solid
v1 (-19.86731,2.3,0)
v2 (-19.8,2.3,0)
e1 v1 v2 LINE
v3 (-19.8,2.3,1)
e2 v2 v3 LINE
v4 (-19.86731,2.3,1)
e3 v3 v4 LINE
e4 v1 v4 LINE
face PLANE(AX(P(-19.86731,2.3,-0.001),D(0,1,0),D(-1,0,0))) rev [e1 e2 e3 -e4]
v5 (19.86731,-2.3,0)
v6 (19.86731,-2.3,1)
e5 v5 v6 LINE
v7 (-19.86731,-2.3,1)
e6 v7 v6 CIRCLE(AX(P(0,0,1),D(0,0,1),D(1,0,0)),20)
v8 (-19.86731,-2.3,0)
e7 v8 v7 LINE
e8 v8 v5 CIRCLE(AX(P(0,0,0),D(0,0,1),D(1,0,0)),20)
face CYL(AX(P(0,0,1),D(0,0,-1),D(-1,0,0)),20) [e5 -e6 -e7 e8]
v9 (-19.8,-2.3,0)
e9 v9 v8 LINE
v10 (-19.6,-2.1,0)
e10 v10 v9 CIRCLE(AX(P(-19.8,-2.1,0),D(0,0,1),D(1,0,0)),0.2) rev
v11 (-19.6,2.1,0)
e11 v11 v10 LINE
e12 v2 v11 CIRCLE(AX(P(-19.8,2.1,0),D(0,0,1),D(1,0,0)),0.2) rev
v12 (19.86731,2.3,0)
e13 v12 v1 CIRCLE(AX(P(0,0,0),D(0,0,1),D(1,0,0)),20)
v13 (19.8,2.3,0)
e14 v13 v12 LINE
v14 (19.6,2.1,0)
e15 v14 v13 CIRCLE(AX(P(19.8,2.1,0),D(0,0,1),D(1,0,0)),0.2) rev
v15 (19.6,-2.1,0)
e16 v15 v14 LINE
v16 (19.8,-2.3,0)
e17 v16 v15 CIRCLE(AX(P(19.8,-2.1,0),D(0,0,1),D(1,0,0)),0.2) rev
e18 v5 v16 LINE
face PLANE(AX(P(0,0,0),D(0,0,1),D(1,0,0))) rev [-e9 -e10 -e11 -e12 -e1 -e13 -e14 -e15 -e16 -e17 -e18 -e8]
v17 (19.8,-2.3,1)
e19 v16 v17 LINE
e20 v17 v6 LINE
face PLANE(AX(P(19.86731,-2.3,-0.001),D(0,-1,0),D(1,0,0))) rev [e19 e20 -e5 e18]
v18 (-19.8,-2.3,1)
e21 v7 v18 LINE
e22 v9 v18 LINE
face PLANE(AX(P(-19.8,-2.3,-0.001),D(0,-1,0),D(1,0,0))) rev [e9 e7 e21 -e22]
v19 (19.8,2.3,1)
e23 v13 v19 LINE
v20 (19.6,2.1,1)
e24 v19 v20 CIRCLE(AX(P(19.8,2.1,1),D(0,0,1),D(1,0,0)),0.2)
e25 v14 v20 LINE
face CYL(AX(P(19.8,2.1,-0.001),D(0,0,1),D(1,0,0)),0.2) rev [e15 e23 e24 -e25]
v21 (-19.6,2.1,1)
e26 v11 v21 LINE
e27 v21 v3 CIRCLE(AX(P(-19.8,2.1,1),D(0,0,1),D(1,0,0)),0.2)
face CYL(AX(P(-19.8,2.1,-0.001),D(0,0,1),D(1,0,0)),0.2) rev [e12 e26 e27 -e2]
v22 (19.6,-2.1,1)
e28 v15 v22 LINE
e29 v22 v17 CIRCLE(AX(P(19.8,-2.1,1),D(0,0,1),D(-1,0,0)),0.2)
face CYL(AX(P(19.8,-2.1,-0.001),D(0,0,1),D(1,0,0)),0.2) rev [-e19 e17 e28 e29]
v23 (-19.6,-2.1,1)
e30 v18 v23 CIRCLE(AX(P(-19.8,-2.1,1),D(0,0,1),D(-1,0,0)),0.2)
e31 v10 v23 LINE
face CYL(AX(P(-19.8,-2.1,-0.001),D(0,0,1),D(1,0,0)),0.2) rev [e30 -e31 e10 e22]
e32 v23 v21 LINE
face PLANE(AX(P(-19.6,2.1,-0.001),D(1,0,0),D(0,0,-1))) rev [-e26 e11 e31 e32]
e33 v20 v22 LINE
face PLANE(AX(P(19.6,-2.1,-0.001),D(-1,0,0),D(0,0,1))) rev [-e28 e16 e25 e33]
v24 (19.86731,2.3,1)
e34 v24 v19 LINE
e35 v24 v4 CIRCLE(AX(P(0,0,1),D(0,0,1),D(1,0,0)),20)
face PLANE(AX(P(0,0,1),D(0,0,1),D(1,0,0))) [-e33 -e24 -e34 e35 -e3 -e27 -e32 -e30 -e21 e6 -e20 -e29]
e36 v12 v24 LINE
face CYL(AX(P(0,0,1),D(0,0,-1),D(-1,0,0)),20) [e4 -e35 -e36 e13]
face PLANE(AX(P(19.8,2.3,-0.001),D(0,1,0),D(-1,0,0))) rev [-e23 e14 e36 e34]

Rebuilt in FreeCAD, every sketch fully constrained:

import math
import FreeCAD as App
import Part
import Sketcher
from FreeCAD import Vector

doc = App.newDocument("Part")
body = doc.addObject("PartDesign::Body", "Body")

# Sketch on XY plane
sketch1 = doc.addObject("Sketcher::SketchObject", "Sketch")
body.addObject(sketch1)
sketch1.AttachmentSupport = (doc.XY_Plane, [""])
sketch1.MapMode = "FlatFace"
sketch1.addGeometry(Part.Circle(Vector(0, 0, 0), Vector(0, 0, 1), 20), False)
sketch1.addConstraint([
    Sketcher.Constraint("Coincident", 0, 3, -1, 1),
    Sketcher.Constraint("Diameter", 0, 40.0),
])
pad1 = doc.addObject("PartDesign::Pad", "Pad")
body.addObject(pad1)
pad1.Profile = sketch1
pad1.Length = 1

# Sketch on XY plane
sketch2 = doc.addObject("Sketcher::SketchObject", "Sketch001")
body.addObject(sketch2)
sketch2.AttachmentSupport = (doc.XY_Plane, [""])
sketch2.MapMode = "FlatFace"
sketch2.AttachmentOffset = App.Placement(Vector(0, 0, 1), App.Rotation())
sketch2.addGeometry([
    Part.LineSegment(Vector(-19.8, 2.3, 0), Vector(-19.87, 2.3, 0)),  # 0
    Part.ArcOfCircle(Part.Circle(Vector(0, 0, 0), Vector(0, 0, 1), 20), math.radians(173.4), math.radians(186.6)),  # 1
    Part.LineSegment(Vector(-19.87, -2.3, 0), Vector(-19.8, -2.3, 0)),  # 2
    Part.ArcOfCircle(Part.Circle(Vector(-19.8, -2.1, 0), Vector(0, 0, 1), 0.2), math.radians(-90), math.radians(0)),  # 3
    Part.LineSegment(Vector(-19.6, -2.1, 0), Vector(-19.6, 2.1, 0)),  # 4
    Part.ArcOfCircle(Part.Circle(Vector(-19.8, 2.1, 0), Vector(0, 0, 1), 0.2), math.radians(0), math.radians(90)),  # 5
], False)
sketch2.addConstraint([
    Sketcher.Constraint("Coincident", 0, 2, 1, 1),
    Sketcher.Constraint("Coincident", 1, 2, 2, 1),
    Sketcher.Constraint("Tangent", 2, 2, 3, 1),
    Sketcher.Constraint("Tangent", 3, 2, 4, 1),
    Sketcher.Constraint("Tangent", 4, 2, 5, 1),
    Sketcher.Constraint("Tangent", 5, 2, 0, 1),
    Sketcher.Constraint("Horizontal", 0),
    Sketcher.Constraint("Horizontal", 2),
    Sketcher.Constraint("Vertical", 4),
    Sketcher.Constraint("Coincident", 1, 3, -1, 1),
    Sketcher.Constraint("Equal", 3, 5),
    Sketcher.Constraint("Vertical", 0, 2, 1, 2),
    Sketcher.Constraint("Radius", 1, 20.0),
    Sketcher.Constraint("Radius", 3, 0.2),
    Sketcher.Constraint("DistanceY", 4, 1, 4, 2, 4.2),
    Sketcher.Constraint("DistanceX", 3, 3, -1, 1, 19.8),
])
pocket1 = doc.addObject("PartDesign::Pocket", "Pocket")
body.addObject(pocket1)
pocket1.Profile = sketch2
pocket1.Length = 1
doc.recompute()

polarpattern = doc.addObject("PartDesign::PolarPattern", "PolarPattern")
body.addObject(polarpattern)
polarpattern.Originals = [pocket1]
polarpattern.Axis = (doc.Z_Axis, [""])
polarpattern.Angle = 360
polarpattern.Occurrences = 2
body.Tip = polarpattern

doc.recompute()
